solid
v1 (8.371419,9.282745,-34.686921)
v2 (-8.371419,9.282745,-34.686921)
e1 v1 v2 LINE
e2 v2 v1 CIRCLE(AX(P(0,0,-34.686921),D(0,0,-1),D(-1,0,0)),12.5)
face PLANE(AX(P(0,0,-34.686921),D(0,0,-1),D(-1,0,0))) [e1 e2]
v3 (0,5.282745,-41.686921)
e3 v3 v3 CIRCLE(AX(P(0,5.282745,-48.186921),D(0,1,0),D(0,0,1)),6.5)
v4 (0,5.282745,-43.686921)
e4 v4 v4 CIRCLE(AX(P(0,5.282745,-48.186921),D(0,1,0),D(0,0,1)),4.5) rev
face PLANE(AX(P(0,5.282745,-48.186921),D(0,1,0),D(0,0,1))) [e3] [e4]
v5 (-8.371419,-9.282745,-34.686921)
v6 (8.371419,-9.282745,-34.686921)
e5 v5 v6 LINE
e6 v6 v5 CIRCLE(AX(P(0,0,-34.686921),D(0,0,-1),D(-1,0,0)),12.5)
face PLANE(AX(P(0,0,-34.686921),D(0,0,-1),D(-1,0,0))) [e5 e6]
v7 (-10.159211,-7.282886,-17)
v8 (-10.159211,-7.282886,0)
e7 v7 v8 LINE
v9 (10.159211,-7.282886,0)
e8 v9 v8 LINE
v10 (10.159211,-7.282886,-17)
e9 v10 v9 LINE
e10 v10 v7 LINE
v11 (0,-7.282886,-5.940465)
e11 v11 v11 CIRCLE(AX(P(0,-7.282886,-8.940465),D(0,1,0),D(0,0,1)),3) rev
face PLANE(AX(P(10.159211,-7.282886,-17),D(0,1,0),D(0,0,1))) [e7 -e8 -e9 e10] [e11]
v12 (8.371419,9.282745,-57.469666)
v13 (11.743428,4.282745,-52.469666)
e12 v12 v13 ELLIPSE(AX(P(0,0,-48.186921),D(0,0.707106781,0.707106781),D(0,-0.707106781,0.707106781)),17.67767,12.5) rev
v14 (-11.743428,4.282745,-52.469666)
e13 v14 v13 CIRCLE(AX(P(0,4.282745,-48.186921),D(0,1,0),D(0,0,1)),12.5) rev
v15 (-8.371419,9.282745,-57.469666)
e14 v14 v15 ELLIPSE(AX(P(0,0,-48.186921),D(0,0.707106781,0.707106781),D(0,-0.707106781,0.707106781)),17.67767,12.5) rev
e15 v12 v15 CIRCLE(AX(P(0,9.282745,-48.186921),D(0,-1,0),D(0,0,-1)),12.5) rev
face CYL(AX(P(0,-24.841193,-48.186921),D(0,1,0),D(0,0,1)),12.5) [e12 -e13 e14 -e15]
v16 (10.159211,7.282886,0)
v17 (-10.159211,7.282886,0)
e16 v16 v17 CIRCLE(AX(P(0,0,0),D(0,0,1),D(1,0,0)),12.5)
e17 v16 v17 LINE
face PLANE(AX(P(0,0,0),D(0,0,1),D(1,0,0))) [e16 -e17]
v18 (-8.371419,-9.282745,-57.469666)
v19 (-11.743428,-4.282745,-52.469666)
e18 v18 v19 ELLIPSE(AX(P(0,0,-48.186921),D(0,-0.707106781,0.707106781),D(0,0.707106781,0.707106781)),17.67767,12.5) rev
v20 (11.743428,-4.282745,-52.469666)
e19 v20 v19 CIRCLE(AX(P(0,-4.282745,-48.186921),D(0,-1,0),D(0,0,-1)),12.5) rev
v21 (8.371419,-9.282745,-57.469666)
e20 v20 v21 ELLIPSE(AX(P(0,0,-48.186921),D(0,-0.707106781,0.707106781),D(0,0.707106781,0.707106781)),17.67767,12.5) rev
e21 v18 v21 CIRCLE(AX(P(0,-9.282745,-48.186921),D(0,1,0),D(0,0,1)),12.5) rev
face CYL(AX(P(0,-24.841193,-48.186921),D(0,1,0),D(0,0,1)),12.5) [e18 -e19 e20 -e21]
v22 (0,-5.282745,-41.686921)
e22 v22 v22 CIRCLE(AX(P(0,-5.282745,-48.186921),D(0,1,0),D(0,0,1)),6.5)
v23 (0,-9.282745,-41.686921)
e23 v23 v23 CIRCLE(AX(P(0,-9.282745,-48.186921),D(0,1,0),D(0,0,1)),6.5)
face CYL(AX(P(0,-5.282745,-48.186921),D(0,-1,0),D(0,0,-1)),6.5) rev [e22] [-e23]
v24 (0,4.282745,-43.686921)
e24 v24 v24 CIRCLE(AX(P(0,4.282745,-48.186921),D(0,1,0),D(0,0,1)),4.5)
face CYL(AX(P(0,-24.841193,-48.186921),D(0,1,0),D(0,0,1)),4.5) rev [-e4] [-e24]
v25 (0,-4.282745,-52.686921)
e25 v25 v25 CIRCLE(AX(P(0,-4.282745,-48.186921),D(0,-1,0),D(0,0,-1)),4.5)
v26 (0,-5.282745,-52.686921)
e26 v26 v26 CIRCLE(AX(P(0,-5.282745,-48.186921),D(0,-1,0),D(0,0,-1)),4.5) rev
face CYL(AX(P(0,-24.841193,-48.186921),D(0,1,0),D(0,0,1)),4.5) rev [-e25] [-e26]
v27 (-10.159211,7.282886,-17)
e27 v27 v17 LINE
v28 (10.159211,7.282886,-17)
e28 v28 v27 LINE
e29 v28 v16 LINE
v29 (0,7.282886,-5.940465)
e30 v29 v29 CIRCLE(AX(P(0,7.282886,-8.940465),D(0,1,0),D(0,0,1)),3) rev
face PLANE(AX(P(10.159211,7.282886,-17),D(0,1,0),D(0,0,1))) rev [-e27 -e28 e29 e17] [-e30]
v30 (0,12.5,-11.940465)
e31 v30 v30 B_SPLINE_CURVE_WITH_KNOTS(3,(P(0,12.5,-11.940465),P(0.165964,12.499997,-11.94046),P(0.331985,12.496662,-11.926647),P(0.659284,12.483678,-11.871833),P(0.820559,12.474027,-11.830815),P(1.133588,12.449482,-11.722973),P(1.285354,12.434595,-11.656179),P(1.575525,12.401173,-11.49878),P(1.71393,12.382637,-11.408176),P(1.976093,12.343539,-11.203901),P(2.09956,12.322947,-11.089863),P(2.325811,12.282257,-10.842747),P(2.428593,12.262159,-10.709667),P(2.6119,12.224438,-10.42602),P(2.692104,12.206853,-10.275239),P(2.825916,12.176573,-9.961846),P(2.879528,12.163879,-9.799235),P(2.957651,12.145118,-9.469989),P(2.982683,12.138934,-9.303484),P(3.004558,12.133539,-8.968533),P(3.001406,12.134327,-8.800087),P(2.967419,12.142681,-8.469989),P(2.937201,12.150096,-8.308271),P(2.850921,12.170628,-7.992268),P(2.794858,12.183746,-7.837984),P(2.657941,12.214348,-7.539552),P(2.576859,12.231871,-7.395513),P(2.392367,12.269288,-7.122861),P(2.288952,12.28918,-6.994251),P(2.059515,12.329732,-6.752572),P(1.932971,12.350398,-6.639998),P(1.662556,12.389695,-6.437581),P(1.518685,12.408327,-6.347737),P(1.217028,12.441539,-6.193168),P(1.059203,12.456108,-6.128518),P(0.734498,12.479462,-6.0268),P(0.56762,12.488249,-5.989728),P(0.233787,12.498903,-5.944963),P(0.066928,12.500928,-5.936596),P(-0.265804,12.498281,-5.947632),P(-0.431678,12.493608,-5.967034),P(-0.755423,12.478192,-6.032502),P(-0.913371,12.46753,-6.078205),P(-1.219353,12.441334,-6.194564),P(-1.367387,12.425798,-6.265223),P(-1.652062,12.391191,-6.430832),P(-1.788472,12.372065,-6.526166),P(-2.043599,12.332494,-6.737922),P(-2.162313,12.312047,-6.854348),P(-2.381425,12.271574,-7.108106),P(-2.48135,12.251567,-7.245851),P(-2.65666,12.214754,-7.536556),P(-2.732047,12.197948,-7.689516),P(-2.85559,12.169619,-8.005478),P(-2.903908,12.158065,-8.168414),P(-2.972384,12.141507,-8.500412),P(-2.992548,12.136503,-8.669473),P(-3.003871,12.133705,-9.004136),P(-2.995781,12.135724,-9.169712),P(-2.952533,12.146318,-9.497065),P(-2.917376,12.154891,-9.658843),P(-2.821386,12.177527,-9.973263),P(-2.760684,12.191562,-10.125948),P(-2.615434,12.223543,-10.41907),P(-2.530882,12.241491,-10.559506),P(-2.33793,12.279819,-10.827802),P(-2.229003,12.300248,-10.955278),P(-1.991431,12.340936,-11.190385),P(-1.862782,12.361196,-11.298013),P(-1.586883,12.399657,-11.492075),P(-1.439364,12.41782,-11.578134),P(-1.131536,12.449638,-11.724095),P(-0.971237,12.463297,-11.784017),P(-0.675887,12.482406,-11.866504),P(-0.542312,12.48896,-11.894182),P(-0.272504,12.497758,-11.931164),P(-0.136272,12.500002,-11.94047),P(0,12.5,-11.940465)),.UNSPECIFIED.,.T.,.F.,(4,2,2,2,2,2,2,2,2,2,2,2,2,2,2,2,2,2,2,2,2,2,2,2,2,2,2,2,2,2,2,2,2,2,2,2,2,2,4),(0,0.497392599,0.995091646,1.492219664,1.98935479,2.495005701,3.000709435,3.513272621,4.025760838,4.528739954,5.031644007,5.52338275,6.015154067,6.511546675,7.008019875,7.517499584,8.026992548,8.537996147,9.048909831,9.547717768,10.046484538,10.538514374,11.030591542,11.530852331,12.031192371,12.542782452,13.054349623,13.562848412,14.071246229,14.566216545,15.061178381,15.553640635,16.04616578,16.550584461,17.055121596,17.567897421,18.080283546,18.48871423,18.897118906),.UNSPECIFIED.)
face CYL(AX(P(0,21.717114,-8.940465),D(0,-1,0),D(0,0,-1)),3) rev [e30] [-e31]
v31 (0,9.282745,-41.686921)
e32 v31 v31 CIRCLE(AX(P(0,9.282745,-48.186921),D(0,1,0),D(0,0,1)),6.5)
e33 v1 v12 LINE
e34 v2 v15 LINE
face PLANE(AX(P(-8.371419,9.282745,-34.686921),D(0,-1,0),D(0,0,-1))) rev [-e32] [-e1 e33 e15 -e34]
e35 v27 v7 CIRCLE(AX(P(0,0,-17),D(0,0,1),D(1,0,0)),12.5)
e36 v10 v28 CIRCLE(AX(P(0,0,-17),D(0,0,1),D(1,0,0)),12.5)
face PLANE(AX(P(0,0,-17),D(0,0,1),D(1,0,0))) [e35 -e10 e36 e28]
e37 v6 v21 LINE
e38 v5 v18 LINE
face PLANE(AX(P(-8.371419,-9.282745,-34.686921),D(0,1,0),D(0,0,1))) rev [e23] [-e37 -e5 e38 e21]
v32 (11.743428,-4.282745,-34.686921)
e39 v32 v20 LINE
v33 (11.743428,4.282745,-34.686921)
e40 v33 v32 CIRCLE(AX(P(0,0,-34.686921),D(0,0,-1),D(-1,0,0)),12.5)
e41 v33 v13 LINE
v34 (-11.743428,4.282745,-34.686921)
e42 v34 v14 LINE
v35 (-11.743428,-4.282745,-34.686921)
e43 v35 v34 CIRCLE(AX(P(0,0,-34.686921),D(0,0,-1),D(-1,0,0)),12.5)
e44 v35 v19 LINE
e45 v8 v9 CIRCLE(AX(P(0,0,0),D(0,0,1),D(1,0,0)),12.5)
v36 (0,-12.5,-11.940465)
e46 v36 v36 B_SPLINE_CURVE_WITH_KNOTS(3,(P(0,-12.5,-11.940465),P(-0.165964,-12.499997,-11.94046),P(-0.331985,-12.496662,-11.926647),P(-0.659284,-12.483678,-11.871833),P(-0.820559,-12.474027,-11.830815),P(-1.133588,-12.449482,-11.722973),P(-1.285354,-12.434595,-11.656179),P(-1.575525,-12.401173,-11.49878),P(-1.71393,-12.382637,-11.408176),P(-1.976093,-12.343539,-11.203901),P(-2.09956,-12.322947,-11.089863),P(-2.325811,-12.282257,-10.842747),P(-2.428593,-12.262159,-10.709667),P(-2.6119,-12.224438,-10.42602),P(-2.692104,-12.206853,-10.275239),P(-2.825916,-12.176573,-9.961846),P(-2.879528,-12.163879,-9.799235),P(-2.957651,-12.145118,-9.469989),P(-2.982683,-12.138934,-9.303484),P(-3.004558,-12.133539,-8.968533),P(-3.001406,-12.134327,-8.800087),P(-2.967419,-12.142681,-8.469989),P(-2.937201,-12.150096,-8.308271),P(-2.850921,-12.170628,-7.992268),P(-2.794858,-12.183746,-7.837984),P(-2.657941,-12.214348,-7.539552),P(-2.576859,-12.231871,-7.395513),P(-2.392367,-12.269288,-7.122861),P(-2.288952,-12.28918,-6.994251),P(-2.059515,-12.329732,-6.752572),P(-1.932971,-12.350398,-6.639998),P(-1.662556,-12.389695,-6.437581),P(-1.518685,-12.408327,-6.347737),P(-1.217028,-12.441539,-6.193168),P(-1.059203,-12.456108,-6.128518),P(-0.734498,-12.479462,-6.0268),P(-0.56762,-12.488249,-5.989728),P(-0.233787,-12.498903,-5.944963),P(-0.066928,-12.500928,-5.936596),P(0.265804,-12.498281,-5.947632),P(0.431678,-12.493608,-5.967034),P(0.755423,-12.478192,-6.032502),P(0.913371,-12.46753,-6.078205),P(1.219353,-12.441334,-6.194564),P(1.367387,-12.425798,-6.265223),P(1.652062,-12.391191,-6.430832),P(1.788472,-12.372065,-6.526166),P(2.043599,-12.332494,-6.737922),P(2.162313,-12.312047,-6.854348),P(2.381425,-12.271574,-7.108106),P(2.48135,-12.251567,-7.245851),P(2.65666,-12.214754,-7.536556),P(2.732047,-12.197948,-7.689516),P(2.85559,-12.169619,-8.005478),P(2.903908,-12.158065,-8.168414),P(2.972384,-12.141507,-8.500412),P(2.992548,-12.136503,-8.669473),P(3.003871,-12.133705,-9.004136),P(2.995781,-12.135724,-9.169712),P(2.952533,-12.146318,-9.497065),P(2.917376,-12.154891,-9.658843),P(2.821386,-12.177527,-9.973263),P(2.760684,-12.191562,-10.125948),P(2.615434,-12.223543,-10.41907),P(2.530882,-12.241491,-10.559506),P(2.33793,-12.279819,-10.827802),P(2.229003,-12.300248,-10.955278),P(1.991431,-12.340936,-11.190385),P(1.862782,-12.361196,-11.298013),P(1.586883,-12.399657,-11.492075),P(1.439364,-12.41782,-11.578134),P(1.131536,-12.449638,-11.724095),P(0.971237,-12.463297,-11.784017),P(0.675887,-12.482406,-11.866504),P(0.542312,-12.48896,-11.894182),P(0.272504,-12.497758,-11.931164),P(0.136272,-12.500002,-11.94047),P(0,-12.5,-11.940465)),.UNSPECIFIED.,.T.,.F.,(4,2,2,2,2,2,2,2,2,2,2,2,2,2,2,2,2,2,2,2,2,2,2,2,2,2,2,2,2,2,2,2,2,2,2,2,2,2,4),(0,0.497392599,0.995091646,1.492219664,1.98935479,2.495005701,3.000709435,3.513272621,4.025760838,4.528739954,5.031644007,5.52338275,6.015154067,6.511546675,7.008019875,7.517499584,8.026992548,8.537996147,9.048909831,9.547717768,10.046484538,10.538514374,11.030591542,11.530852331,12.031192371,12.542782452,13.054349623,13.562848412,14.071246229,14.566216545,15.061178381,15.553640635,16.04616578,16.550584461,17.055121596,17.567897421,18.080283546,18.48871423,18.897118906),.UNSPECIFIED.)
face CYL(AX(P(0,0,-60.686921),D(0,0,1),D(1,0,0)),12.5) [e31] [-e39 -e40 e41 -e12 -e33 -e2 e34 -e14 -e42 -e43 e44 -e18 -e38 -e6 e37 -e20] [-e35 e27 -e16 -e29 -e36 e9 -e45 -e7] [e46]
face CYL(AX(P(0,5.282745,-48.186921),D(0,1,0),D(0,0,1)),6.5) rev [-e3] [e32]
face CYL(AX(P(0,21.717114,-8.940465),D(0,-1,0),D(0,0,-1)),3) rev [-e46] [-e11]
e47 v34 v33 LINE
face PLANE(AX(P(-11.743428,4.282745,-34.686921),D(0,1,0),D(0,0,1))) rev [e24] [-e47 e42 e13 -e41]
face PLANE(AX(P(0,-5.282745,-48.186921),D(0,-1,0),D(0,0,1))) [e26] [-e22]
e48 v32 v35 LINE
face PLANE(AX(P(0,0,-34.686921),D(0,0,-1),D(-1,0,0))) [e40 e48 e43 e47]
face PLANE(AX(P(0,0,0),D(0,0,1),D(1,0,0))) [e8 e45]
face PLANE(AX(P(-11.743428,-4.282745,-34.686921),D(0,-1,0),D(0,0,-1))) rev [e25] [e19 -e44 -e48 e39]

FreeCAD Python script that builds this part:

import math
import FreeCAD as App
import Part
import Sketcher

doc = App.newDocument("Part")
body = doc.addObject("PartDesign::Body", "Body")

# Sketch on XY plane
sketch1 = body.newObject("Sketcher::SketchObject", "Sketch")
sketch1.AttachmentSupport = (doc.getObject("XY_Plane"), [""])
sketch1.MapMode = "FlatFace"
sketch1.addGeometry(Part.Circle(App.Vector(0, 0, 0), App.Vector(0, 0, 1), 12), False)
sketch1.addConstraint([
    Sketcher.Constraint("Coincident", 0, 3, -1, 1),
    Sketcher.Constraint("Diameter", 0, 25.0),
])
pad1 = body.newObject("PartDesign::Pad", "Pad")
pad1.Profile = sketch1
pad1.Length = 60.686921
pad1.Reversed = True

# Sketch on XY plane
sketch2 = body.newObject("Sketcher::SketchObject", "Sketch001")
sketch2.AttachmentSupport = (doc.getObject("XY_Plane"), [""])
sketch2.MapMode = "FlatFace"
sketch2.AttachmentOffset = App.Placement(App.Vector(0, 0, -34.686921), App.Rotation())
sketch2.addGeometry([
    Part.LineSegment(App.Vector(8, 9, 0), App.Vector(-8, 9, 0)),  # 0
    Part.ArcOfCircle(Part.Circle(App.Vector(0, 0, 0), App.Vector(0, 0, 1), 12), math.radians(48), math.radians(132)),  # 1
    Part.LineSegment(App.Vector(-12, 4, 0), App.Vector(12, 4, 0)),  # 2
    Part.ArcOfCircle(Part.Circle(App.Vector(0, 0, 0), App.Vector(0, 0, 1), 13), math.radians(-20), math.radians(20)),  # 3
    Part.LineSegment(App.Vector(12, -4, 0), App.Vector(-12, -4, 0)),  # 4
    Part.ArcOfCircle(Part.Circle(App.Vector(0, 0, 0), App.Vector(0, 0, 1), 13), math.radians(160), math.radians(200)),  # 5
    Part.LineSegment(App.Vector(-8, -9, 0), App.Vector(8, -9, 0)),  # 6
    Part.ArcOfCircle(Part.Circle(App.Vector(0, 0, 0), App.Vector(0, 0, 1), 12), math.radians(-132), math.radians(-48)),  # 7
], False)
sketch2.addConstraint([
    Sketcher.Constraint("Coincident", 0, 1, 1, 1),
    Sketcher.Constraint("Coincident", 1, 2, 0, 2),
    Sketcher.Constraint("Coincident", 2, 2, 3, 2),
    Sketcher.Constraint("Coincident", 3, 1, 4, 1),
    Sketcher.Constraint("Coincident", 4, 2, 5, 2),
    Sketcher.Constraint("Coincident", 5, 1, 2, 1),
    Sketcher.Constraint("Coincident", 6, 1, 7, 1),
    Sketcher.Constraint("Coincident", 7, 2, 6, 2),
    Sketcher.Constraint("Horizontal", 0),
    Sketcher.Constraint("Horizontal", 2),
    Sketcher.Constraint("Horizontal", 4),
    Sketcher.Constraint("Horizontal", 6),
    Sketcher.Constraint("Coincident", 1, 3, -1, 1),
    Sketcher.Constraint("Coincident", 3, 3, -1, 1),
    Sketcher.Constraint("Coincident", 5, 3, -1, 1),
    Sketcher.Constraint("Coincident", 7, 3, -1, 1),
    Sketcher.Constraint("Equal", 1, 3),
    Sketcher.Constraint("Equal", 3, 5),
    Sketcher.Constraint("Equal", 5, 7),
    Sketcher.Constraint("Vertical", 2, 2, 3, 1),
    Sketcher.Constraint("Vertical", 1, 2, 6, 1),
    Sketcher.Constraint("Radius", 1, 12.5),
    Sketcher.Constraint("DistanceY", 2, 2, 0, 1, 5.0),
    Sketcher.Constraint("DistanceX", 0, 2, 0, 1, 16.742838),
])
pocket1 = body.newObject("PartDesign::Pocket", "Pocket")
pocket1.Profile = sketch2
pocket1.Length = 26

# Sketch on XZ plane
sketch3 = body.newObject("Sketcher::SketchObject", "Sketch002")
sketch3.AttachmentSupport = (doc.getObject("XZ_Plane"), [""])
sketch3.MapMode = "FlatFace"
sketch3.AttachmentOffset = App.Placement(App.Vector(0, 0, -9.282745), App.Rotation())
sketch3.addGeometry([
    Part.Circle(App.Vector(0, -48.2, 0), App.Vector(0, 0, 1), 4.5),  # 0
    Part.LineSegment(App.Vector(-22.5, -48.2, 0), App.Vector(-12.5, -48.2, 0)),  # 1
    Part.ArcOfCircle(Part.Circle(App.Vector(0, -48.2, 0), App.Vector(0, 0, 1), 12.5), math.radians(180), math.radians(360)),  # 2
    Part.LineSegment(App.Vector(12.5, -48.2, 0), App.Vector(22.5, -48.2, 0)),  # 3
    Part.ArcOfCircle(Part.Circle(App.Vector(0, -48.2, 0), App.Vector(0, 0, 1), 22.5), math.radians(180), math.radians(360)),  # 4
], False)
sketch3.addConstraint([
    Sketcher.Constraint("Coincident", 1, 2, 2, 1),
    Sketcher.Constraint("Coincident", 2, 2, 3, 1),
    Sketcher.Constraint("Coincident", 3, 2, 4, 2),
    Sketcher.Constraint("Coincident", 4, 1, 1, 1),
    Sketcher.Constraint("Horizontal", 1),
    Sketcher.Constraint("Horizontal", 3),
    Sketcher.Constraint("Coincident", 2, 3, 0, 3),
    Sketcher.Constraint("Coincident", 4, 3, 0, 3),
    Sketcher.Constraint("Symmetric", 1, 2, 2, 2, -2),
    Sketcher.Constraint("Horizontal", 4, 3, 1, 2),
    Sketcher.Constraint("Diameter", 0, 9.0),
    Sketcher.Constraint("Radius", 2, 12.5),
    Sketcher.Constraint("Radius", 4, 22.5),
    Sketcher.Constraint("DistanceY", 0, 3, -1, 1, 48.186921),
])
pocket2 = body.newObject("PartDesign::Pocket", "Pocket001")
pocket2.Profile = sketch3
pocket2.Length = 34.123938
pocket2.Reversed = True

# Sketch on XZ plane
sketch4 = body.newObject("Sketcher::SketchObject", "Sketch003")
sketch4.AttachmentSupport = (doc.getObject("XZ_Plane"), [""])
sketch4.MapMode = "FlatFace"
sketch4.AttachmentOffset = App.Placement(App.Vector(0, 0, -9.282745), App.Rotation())
sketch4.addGeometry(Part.Circle(App.Vector(0, -48, 0), App.Vector(0, 0, 1), 6), False)
sketch4.addConstraint([
    Sketcher.Constraint("PointOnObject", 0, 3, -2),
    Sketcher.Constraint("Diameter", 0, 13.0),
    Sketcher.Constraint("DistanceY", 0, 3, -1, 1, 48.186921),
])
pocket3 = body.newObject("PartDesign::Pocket", "Pocket002")
pocket3.Profile = sketch4
pocket3.Length = 4
pocket3.Reversed = True
doc.recompute()

mirrored = body.newObject("PartDesign::Mirrored", "Mirrored")
mirrored.Originals = [pocket3]
mirrored.MirrorPlane = (doc.getObject("XZ_Plane"), [""])
body.Tip = mirrored

# Sketch on XY plane
sketch5 = body.newObject("Sketcher::SketchObject", "Sketch004")
sketch5.AttachmentSupport = (doc.getObject("XY_Plane"), [""])
sketch5.MapMode = "FlatFace"
sketch5.addGeometry([
    Part.LineSegment(App.Vector(10, 7, 0), App.Vector(-10, 7, 0)),
    Part.ArcOfCircle(Part.Circle(App.Vector(0, 0, 0), App.Vector(0, 0, 1), 13), math.radians(144), math.radians(216)),
    Part.LineSegment(App.Vector(-10, -7, 0), App.Vector(10, -7, 0)),
    Part.ArcOfCircle(Part.Circle(App.Vector(0, 0, 0), App.Vector(0, 0, 1), 13), math.radians(-36), math.radians(36)),
], False)
sketch5.addConstraint([
    Sketcher.Constraint("Coincident", 0, 2, 1, 1),
    Sketcher.Constraint("Coincident", 1, 2, 2, 1),
    Sketcher.Constraint("Coincident", 2, 2, 3, 1),
    Sketcher.Constraint("Coincident", 3, 2, 0, 1),
    Sketcher.Constraint("Horizontal", 0),
    Sketcher.Constraint("Horizontal", 2),
    Sketcher.Constraint("Coincident", 1, 3, -1, 1),
    Sketcher.Constraint("Coincident", 3, 3, -1, 1),
    Sketcher.Constraint("Equal", 1, 3),
    Sketcher.Constraint("Vertical", 0, 2, 1, 2),
    Sketcher.Constraint("Radius", 1, 12.5),
    Sketcher.Constraint("DistanceX", 0, 2, 0, 1, 20.318422),
])
pocket4 = body.newObject("PartDesign::Pocket", "Pocket003")
pocket4.Profile = sketch5
pocket4.Length = 17

# Sketch on XZ plane
sketch6 = body.newObject("Sketcher::SketchObject", "Sketch005")
sketch6.AttachmentSupport = (doc.getObject("XZ_Plane"), [""])
sketch6.MapMode = "FlatFace"
sketch6.AttachmentOffset = App.Placement(App.Vector(0, 0, 7.282886), App.Rotation())
sketch6.addGeometry(Part.Circle(App.Vector(0, -8.9, 0), App.Vector(0, 0, 1), 3), False)
sketch6.addConstraint([
    Sketcher.Constraint("PointOnObject", 0, 3, -2),
    Sketcher.Constraint("Diameter", 0, 6.0),
    Sketcher.Constraint("DistanceY", 0, 3, -1, 1, 8.940465),
])
pocket5 = body.newObject("PartDesign::Pocket", "Pocket004")
pocket5.Profile = sketch6
pocket5.Type = "ThroughAll"
pocket5.Midplane = True

doc.recompute()
